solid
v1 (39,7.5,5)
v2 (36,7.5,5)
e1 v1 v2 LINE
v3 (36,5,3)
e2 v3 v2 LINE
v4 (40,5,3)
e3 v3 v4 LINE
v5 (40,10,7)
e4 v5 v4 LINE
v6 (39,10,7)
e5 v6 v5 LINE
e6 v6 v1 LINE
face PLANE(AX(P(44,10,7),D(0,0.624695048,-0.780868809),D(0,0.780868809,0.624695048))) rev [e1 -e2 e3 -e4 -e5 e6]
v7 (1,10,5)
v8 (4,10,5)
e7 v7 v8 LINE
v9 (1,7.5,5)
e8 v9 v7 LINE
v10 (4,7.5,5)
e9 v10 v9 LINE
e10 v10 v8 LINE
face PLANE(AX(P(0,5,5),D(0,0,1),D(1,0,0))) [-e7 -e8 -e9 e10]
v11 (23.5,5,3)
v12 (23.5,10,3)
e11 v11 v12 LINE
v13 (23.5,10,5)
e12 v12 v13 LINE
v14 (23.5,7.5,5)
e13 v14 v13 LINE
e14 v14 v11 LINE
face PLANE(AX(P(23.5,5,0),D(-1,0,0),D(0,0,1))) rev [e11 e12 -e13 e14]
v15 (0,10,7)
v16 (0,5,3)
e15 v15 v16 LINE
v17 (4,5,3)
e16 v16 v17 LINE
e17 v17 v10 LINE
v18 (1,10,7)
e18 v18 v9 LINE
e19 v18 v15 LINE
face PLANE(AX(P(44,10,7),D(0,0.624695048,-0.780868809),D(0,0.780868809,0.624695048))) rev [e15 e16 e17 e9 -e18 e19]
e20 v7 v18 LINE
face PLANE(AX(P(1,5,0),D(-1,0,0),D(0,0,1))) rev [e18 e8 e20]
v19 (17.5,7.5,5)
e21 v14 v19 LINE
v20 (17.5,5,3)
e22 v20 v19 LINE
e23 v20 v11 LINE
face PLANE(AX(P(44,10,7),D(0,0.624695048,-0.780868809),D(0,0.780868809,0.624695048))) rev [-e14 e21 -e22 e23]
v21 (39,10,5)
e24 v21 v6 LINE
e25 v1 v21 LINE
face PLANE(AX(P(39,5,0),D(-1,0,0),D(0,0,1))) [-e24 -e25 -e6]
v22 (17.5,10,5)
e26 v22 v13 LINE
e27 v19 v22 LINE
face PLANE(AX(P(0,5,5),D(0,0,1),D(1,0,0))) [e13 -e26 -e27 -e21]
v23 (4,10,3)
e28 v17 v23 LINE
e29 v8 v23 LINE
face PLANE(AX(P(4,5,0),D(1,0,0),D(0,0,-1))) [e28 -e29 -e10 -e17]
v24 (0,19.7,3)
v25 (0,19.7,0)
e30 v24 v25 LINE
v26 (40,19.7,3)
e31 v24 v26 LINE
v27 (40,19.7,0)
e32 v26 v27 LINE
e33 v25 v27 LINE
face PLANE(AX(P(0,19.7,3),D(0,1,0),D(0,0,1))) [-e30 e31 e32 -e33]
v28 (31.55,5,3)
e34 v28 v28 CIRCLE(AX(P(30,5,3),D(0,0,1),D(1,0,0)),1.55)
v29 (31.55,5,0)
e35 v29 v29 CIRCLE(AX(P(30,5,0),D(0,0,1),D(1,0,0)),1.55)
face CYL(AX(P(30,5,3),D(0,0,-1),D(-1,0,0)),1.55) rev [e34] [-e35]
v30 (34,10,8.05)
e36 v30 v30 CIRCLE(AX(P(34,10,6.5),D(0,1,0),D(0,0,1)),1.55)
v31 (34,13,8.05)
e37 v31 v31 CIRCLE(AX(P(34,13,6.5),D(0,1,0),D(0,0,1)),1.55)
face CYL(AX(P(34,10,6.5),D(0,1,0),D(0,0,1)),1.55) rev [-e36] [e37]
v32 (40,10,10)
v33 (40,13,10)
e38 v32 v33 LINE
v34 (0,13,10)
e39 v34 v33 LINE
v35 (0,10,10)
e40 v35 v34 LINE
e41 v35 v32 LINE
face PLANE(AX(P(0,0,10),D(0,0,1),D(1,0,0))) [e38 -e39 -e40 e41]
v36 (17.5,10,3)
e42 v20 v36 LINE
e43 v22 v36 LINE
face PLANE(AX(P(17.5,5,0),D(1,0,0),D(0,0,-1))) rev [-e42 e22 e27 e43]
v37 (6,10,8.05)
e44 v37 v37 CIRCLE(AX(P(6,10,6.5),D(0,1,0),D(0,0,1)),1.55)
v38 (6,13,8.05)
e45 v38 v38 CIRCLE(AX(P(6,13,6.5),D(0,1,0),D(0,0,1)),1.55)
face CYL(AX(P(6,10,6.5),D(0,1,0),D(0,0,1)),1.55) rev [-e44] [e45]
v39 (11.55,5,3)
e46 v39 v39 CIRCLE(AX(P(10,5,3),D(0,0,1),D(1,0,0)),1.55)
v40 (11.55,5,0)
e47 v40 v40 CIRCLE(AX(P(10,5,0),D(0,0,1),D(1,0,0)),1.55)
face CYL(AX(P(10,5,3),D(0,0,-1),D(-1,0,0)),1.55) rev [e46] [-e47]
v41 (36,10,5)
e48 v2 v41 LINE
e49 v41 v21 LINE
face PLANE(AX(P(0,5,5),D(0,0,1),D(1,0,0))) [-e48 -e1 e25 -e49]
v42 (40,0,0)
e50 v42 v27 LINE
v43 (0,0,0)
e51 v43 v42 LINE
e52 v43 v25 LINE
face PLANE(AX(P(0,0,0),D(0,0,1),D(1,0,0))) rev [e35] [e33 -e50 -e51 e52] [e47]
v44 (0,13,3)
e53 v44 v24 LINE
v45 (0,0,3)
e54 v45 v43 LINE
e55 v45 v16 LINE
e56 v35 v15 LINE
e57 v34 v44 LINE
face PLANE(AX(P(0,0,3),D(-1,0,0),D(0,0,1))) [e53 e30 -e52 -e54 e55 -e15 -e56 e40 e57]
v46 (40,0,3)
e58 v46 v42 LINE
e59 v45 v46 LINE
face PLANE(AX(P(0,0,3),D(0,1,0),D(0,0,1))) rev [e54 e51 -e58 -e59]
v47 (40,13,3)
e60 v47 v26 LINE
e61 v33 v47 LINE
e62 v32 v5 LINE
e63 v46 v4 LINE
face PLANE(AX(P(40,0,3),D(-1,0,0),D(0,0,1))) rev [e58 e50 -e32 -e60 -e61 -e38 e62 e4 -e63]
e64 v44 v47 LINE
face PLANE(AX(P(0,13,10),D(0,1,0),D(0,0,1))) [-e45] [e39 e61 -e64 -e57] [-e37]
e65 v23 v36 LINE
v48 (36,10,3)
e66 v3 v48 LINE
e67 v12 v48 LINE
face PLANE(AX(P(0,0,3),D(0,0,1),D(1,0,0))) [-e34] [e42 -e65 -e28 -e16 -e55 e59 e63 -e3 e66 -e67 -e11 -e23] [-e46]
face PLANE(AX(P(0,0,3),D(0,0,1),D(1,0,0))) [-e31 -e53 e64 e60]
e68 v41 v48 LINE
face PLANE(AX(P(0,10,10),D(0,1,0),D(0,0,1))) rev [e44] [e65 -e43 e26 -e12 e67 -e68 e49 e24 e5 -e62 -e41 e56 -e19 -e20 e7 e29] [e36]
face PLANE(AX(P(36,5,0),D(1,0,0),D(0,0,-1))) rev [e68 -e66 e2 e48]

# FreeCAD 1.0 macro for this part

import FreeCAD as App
import Part
import Sketcher
Q = App.Units.Quantity

doc = App.newDocument("Part")
body = doc.addObject("PartDesign::Body", "Body")

# Sketch on XY plane
sketch1 = body.newObject("Sketcher::SketchObject", "Sketch")
sketch1.AttachmentSupport = (doc.getObject("XY_Plane"), [""])
sketch1.MapMode = "FlatFace"
sketch1.addGeometry([
    Part.LineSegment(App.Vector(0, 20, 0), App.Vector(0, 13, 0)),
    Part.LineSegment(App.Vector(0, 13, 0), App.Vector(40, 13, 0)),
    Part.LineSegment(App.Vector(40, 13, 0), App.Vector(40, 20, 0)),
    Part.LineSegment(App.Vector(40, 20, 0), App.Vector(0, 20, 0)),
], False)
sketch1.addConstraint([
    Sketcher.Constraint("Coincident", 0, 2, 1, 1),
    Sketcher.Constraint("Coincident", 1, 2, 2, 1),
    Sketcher.Constraint("Coincident", 2, 2, 3, 1),
    Sketcher.Constraint("Coincident", 3, 2, 0, 1),
    Sketcher.Constraint("Vertical", 0),
    Sketcher.Constraint("Horizontal", 1),
    Sketcher.Constraint("Vertical", 2),
    Sketcher.Constraint("Horizontal", 3),
    Sketcher.Constraint("PointOnObject", 0, 2, -2),
    Sketcher.Constraint("DistanceX", 1, 1, 1, 2, Q("40 mm")),
    Sketcher.Constraint("DistanceY", 0, 2, 0, 1, Q("6.7 mm")),
    Sketcher.Constraint("DistanceY", -1, 1, 0, 2, Q("13 mm")),
])
pad1 = body.newObject("PartDesign::Pad", "Pad")
pad1.Profile = sketch1
pad1.Length = 3
body2 = doc.addObject("PartDesign::Body", "Body001")

# Sketch on XY plane
sketch2 = body2.newObject("Sketcher::SketchObject", "Sketch001")
sketch2.AttachmentSupport = (doc.getObject("XY_Plane001"), [""])
sketch2.MapMode = "FlatFace"
sketch2.addGeometry([
    Part.LineSegment(App.Vector(0, 0, 0), App.Vector(40, 0, 0)),  # 0
    Part.LineSegment(App.Vector(40, 0, 0), App.Vector(40, 10, 0)),  # 1
    Part.LineSegment(App.Vector(40, 10, 0), App.Vector(0, 10, 0)),  # 2
    Part.LineSegment(App.Vector(0, 10, 0), App.Vector(0, 0, 0)),  # 3
    Part.Circle(App.Vector(10, 5, 0), App.Vector(0, 0, 1), 1.6),  # 4
    Part.Circle(App.Vector(30, 5, 0), App.Vector(0, 0, 1), 1.6),  # 5
], False)
sketch2.addConstraint([
    Sketcher.Constraint("Coincident", 0, 2, 1, 1),
    Sketcher.Constraint("Coincident", 1, 2, 2, 1),
    Sketcher.Constraint("Coincident", 2, 2, 3, 1),
    Sketcher.Constraint("Coincident", 3, 2, 0, 1),
    Sketcher.Constraint("Horizontal", 0),
    Sketcher.Constraint("Vertical", 1),
    Sketcher.Constraint("Horizontal", 2),
    Sketcher.Constraint("Vertical", 3),
    Sketcher.Constraint("Coincident", 3, 2, -1, 1),
    Sketcher.Constraint("Equal", 4, 5),
    Sketcher.Constraint("Horizontal", 4, 3, 5, 3),
    Sketcher.Constraint("Diameter", 4, Q("3.1 mm")),
    Sketcher.Constraint("DistanceX", 0, 1, 0, 2, Q("40 mm")),
    Sketcher.Constraint("DistanceY", 1, 1, 1, 2, Q("10 mm")),
    Sketcher.Constraint("DistanceX", -1, 1, 4, 3, Q("10 mm")),
    Sketcher.Constraint("DistanceY", -1, 1, 4, 3, Q("5 mm")),
    Sketcher.Constraint("DistanceX", -1, 1, 5, 3, Q("30 mm")),
])
pad2 = body2.newObject("PartDesign::Pad", "Pad001")
pad2.Profile = sketch2
pad2.Length = 3
body.AllowCompound = True
doc.recompute()

boolean = body.newObject("PartDesign::Boolean", "Boolean")
boolean.Type = "Fuse"
boolean.addObjects([body2])

# Sketch on XY plane
sketch3 = body.newObject("Sketcher::SketchObject", "Sketch002")
sketch3.AttachmentSupport = (doc.getObject("XY_Plane"), [""])
sketch3.MapMode = "FlatFace"
sketch3.addGeometry([
    Part.LineSegment(App.Vector(0, 13, 0), App.Vector(0, 10, 0)),
    Part.LineSegment(App.Vector(0, 10, 0), App.Vector(40, 10, 0)),
    Part.LineSegment(App.Vector(40, 10, 0), App.Vector(40, 13, 0)),
    Part.LineSegment(App.Vector(40, 13, 0), App.Vector(0, 13, 0)),
], False)
sketch3.addConstraint([
    Sketcher.Constraint("Coincident", 0, 2, 1, 1),
    Sketcher.Constraint("Coincident", 1, 2, 2, 1),
    Sketcher.Constraint("Coincident", 2, 2, 3, 1),
    Sketcher.Constraint("Coincident", 3, 2, 0, 1),
    Sketcher.Constraint("Vertical", 0),
    Sketcher.Constraint("Horizontal", 1),
    Sketcher.Constraint("Vertical", 2),
    Sketcher.Constraint("Horizontal", 3),
    Sketcher.Constraint("PointOnObject", 0, 2, -2),
    Sketcher.Constraint("DistanceX", 1, 1, 1, 2, Q("40 mm")),
    Sketcher.Constraint("DistanceY", 0, 2, 0, 1, Q("3 mm")),
    Sketcher.Constraint("DistanceY", -1, 1, 0, 2, Q("10 mm")),
])
pad3 = body.newObject("PartDesign::Pad", "Pad002")
pad3.Profile = sketch3
pad3.Length = 10

# Sketch on XZ plane
sketch4 = body.newObject("Sketcher::SketchObject", "Sketch003")
sketch4.AttachmentSupport = (doc.getObject("XZ_Plane"), [""])
sketch4.MapMode = "FlatFace"
sketch4.AttachmentOffset = App.Placement(App.Vector(0, 0, -13), App.Rotation())
sketch4.addGeometry([
    Part.Circle(App.Vector(6, 6.5, 0), App.Vector(0, 0, 1), 1.6),
    Part.Circle(App.Vector(34, 6.5, 0), App.Vector(0, 0, 1), 1.6),
], False)
sketch4.addConstraint([
    Sketcher.Constraint("Equal", 0, 1),
    Sketcher.Constraint("Horizontal", 0, 3, 1, 3),
    Sketcher.Constraint("Diameter", 0, Q("3.1 mm")),
    Sketcher.Constraint("DistanceX", -1, 1, 0, 3, Q("6 mm")),
    Sketcher.Constraint("DistanceX", -1, 1, 1, 3, Q("34 mm")),
    Sketcher.Constraint("DistanceY", -1, 1, 0, 3, Q("6.5 mm")),
])
pocket1 = body.newObject("PartDesign::Pocket", "Pocket")
pocket1.Profile = sketch4
pocket1.Length = 3
pocket1.Reversed = True

# Sketch on XZ plane
sketch5 = body.newObject("Sketcher::SketchObject", "Sketch004")
sketch5.AttachmentSupport = (doc.getObject("XZ_Plane"), [""])
sketch5.MapMode = "FlatFace"
sketch5.AttachmentOffset = App.Placement(App.Vector(0, 0, -10), App.Rotation())
sketch5.addGeometry([
    Part.LineSegment(App.Vector(17.5, 5, 0), App.Vector(17.5, 3, 0)),  # 0
    Part.LineSegment(App.Vector(17.5, 3, 0), App.Vector(23.5, 3, 0)),  # 1
    Part.LineSegment(App.Vector(23.5, 3, 0), App.Vector(23.5, 5, 0)),  # 2
    Part.LineSegment(App.Vector(23.5, 5, 0), App.Vector(17.5, 5, 0)),  # 3
    Part.LineSegment(App.Vector(0, 3, 0), App.Vector(4, 3, 0)),  # 4
    Part.LineSegment(App.Vector(4, 3, 0), App.Vector(4, 5, 0)),  # 5
    Part.LineSegment(App.Vector(4, 5, 0), App.Vector(1, 5, 0)),  # 6
    Part.LineSegment(App.Vector(1, 5, 0), App.Vector(1, 7, 0)),  # 7
    Part.LineSegment(App.Vector(1, 7, 0), App.Vector(0, 7, 0)),  # 8
    Part.LineSegment(App.Vector(0, 7, 0), App.Vector(0, 3, 0)),  # 9
    Part.LineSegment(App.Vector(36, 5, 0), App.Vector(36, 3, 0)),  # 10
    Part.LineSegment(App.Vector(36, 3, 0), App.Vector(40, 3, 0)),  # 11
    Part.LineSegment(App.Vector(40, 3, 0), App.Vector(40, 7, 0)),  # 12
    Part.LineSegment(App.Vector(40, 7, 0), App.Vector(39, 7, 0)),  # 13
    Part.LineSegment(App.Vector(39, 7, 0), App.Vector(39, 5, 0)),  # 14
    Part.LineSegment(App.Vector(39, 5, 0), App.Vector(36, 5, 0)),  # 15
], False)
sketch5.addConstraint([
    Sketcher.Constraint("Coincident", 0, 2, 1, 1),
    Sketcher.Constraint("Coincident", 1, 2, 2, 1),
    Sketcher.Constraint("Coincident", 2, 2, 3, 1),
    Sketcher.Constraint("Coincident", 3, 2, 0, 1),
    Sketcher.Constraint("Coincident", 4, 2, 5, 1),
    Sketcher.Constraint("Coincident", 5, 2, 6, 1),
    Sketcher.Constraint("Coincident", 6, 2, 7, 1),
    Sketcher.Constraint("Coincident", 7, 2, 8, 1),
    Sketcher.Constraint("Coincident", 8, 2, 9, 1),
    Sketcher.Constraint("Coincident", 9, 2, 4, 1),
    Sketcher.Constraint("Coincident", 10, 2, 11, 1),
    Sketcher.Constraint("Coincident", 11, 2, 12, 1),
    Sketcher.Constraint("Coincident", 12, 2, 13, 1),
    Sketcher.Constraint("Coincident", 13, 2, 14, 1),
    Sketcher.Constraint("Coincident", 14, 2, 15, 1),
    Sketcher.Constraint("Coincident", 15, 2, 10, 1),
    Sketcher.Constraint("Vertical", 0),
    Sketcher.Constraint("Horizontal", 1),
    Sketcher.Constraint("Vertical", 2),
    Sketcher.Constraint("Horizontal", 3),
    Sketcher.Constraint("Horizontal", 4),
    Sketcher.Constraint("Vertical", 5),
    Sketcher.Constraint("Horizontal", 6),
    Sketcher.Constraint("Vertical", 7),
    Sketcher.Constraint("Horizontal", 8),
    Sketcher.Constraint("Vertical", 9),
    Sketcher.Constraint("Vertical", 10),
    Sketcher.Constraint("Horizontal", 11),
    Sketcher.Constraint("Vertical", 12),
    Sketcher.Constraint("Horizontal", 13),
    Sketcher.Constraint("Vertical", 14),
    Sketcher.Constraint("Horizontal", 15),
    Sketcher.Constraint("PointOnObject", 8, 2, -2),
    Sketcher.Constraint("Horizontal", 1, 2, 4, 2),
    Sketcher.Constraint("Horizontal", 3, 2, 5, 2),
    Sketcher.Constraint("Horizontal", 9, 2, 10, 2),
    Sketcher.Constraint("Horizontal", 8, 2, 12, 2),
    Sketcher.Constraint("Horizontal", 6, 2, 14, 2),
    Sketcher.Constraint("Equal", 4, 11),
    Sketcher.Constraint("Equal", 8, 13),
    Sketcher.Constraint("Equal", 5, 7),
    Sketcher.Constraint("Equal", 11, 9),
    Sketcher.Constraint("DistanceX", 1, 1, 1, 2, Q("6 mm")),
    Sketcher.Constraint("DistanceX", 4, 1, 4, 2, Q("4 mm")),
    Sketcher.Constraint("DistanceX", 6, 2, 6, 1, Q("3 mm")),
    Sketcher.Constraint("DistanceY", -1, 1, 0, 2, Q("3 mm")),
    Sketcher.Constraint("DistanceX", -1, 1, 10, 2, Q("36 mm")),
    Sketcher.Constraint("DistanceX", -1, 1, 0, 2, Q("17.5 mm")),
])
pad4 = body.newObject("PartDesign::Pad", "Pad003")
pad4.Profile = sketch5
pad4.Length = 5

# Sketch on YZ plane
sketch6 = body.newObject("Sketcher::SketchObject", "Sketch005")
sketch6.AttachmentSupport = (doc.getObject("YZ_Plane"), [""])
sketch6.MapMode = "FlatFace"
sketch6.addGeometry([
    Part.LineSegment(App.Vector(10, 7, 0), App.Vector(5, 3, 0)),
    Part.LineSegment(App.Vector(5, 3, 0), App.Vector(5, 7, 0)),
    Part.LineSegment(App.Vector(5, 7, 0), App.Vector(10, 7, 0)),
], False)
sketch6.addConstraint([
    Sketcher.Constraint("Coincident", 0, 2, 1, 1),
    Sketcher.Constraint("Coincident", 1, 2, 2, 1),
    Sketcher.Constraint("Coincident", 2, 2, 0, 1),
    Sketcher.Constraint("Vertical", 1),
    Sketcher.Constraint("Horizontal", 2),
    Sketcher.Constraint("DistanceX", 2, 1, 2, 2, Q("5 mm")),
    Sketcher.Constraint("DistanceY", 1, 1, 1, 2, Q("4 mm")),
    Sketcher.Constraint("DistanceX", -1, 1, 0, 2, Q("5 mm")),
    Sketcher.Constraint("DistanceY", -1, 1, 0, 2, Q("3 mm")),
])
pocket2 = body.newObject("PartDesign::Pocket", "Pocket001")
pocket2.Profile = sketch6
pocket2.Length = 44
pocket2.Reversed = True

doc.recompute()
